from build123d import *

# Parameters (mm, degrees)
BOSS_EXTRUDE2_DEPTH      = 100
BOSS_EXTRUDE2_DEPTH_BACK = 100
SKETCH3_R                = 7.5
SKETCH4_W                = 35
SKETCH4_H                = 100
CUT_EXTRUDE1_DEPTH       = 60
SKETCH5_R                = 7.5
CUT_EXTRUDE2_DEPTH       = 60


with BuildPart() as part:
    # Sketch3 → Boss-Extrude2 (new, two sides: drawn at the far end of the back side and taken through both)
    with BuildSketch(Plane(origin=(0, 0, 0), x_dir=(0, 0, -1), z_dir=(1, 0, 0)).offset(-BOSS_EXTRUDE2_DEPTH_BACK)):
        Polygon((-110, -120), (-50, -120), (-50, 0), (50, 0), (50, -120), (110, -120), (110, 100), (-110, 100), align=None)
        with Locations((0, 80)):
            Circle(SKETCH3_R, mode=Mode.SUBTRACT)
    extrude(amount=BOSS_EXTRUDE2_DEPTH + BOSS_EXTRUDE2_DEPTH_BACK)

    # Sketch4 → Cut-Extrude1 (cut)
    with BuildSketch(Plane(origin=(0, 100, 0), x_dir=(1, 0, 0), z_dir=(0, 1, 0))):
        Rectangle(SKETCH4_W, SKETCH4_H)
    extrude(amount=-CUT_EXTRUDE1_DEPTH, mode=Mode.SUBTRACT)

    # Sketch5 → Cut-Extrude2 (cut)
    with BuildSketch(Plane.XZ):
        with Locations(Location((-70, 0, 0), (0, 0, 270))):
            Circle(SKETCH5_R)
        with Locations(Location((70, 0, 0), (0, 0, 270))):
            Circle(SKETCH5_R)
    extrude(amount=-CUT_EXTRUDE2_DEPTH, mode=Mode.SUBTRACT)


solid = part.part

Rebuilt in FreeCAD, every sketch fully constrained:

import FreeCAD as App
import Part
import Sketcher

V = App.Vector
Q = App.Units.Quantity

doc = App.newDocument("Part")
params = doc.addObject("Spreadsheet::Sheet", "Params")
for row, (alias, value) in enumerate([
    ("sketch1_diameter", "15 mm"),
    ("sketch1_width", "120 mm"),
    ("sketch1_width2", "220 mm"),
    ("sketch1_height", "60 mm"),
    ("pad1_length", "100 mm"),
    ("pad1_length2", "100 mm"),
    ("sketch2_width", "35 mm"),
    ("sketch2_height", "100 mm"),
    ("pocket1_length", "60 mm"),
    ("sketch3_diameter", "15 mm"),
    ("pocket2_length", "60 mm"),
], start=1):
    params.set(f"A{row}", alias)
    params.set(f"B{row}", "=" + value)
    params.setAlias(f"B{row}", alias)

body = doc.addObject("PartDesign::Body", "Body")

# Sketch on YZ plane
sketch1 = doc.addObject("Sketcher::SketchObject", "Sketch")
body.addObject(sketch1)
sketch1.AttachmentSupport = (doc.YZ_Plane, [""])
sketch1.MapMode = "FlatFace"
sketch1.addGeometry([
    Part.LineSegment(V(-120, 110, 0), V(-120, 50, 0)),  # 0
    Part.LineSegment(V(-120, 50, 0), V(0, 50, 0)),  # 1
    Part.LineSegment(V(0, 50, 0), V(0, -50, 0)),  # 2
    Part.LineSegment(V(0, -50, 0), V(-120, -50, 0)),  # 3
    Part.LineSegment(V(-120, -50, 0), V(-120, -110, 0)),  # 4
    Part.LineSegment(V(-120, -110, 0), V(100, -110, 0)),  # 5
    Part.LineSegment(V(100, -110, 0), V(100, 110, 0)),  # 6
    Part.LineSegment(V(100, 110, 0), V(-120, 110, 0)),  # 7
    Part.Circle(V(80, 0, 0), V(0, 0, 1), 8),  # 8
], False)
sketch1.addConstraint([
    Sketcher.Constraint("Coincident", 0, 2, 1, 1),
    Sketcher.Constraint("Coincident", 1, 2, 2, 1),
    Sketcher.Constraint("Coincident", 2, 2, 3, 1),
    Sketcher.Constraint("Coincident", 3, 2, 4, 1),
    Sketcher.Constraint("Coincident", 4, 2, 5, 1),
    Sketcher.Constraint("Coincident", 5, 2, 6, 1),
    Sketcher.Constraint("Coincident", 6, 2, 7, 1),
    Sketcher.Constraint("Coincident", 7, 2, 0, 1),
    Sketcher.Constraint("Vertical", 0),
    Sketcher.Constraint("Horizontal", 1),
    Sketcher.Constraint("Vertical", 2),
    Sketcher.Constraint("Horizontal", 3),
    Sketcher.Constraint("Vertical", 4),
    Sketcher.Constraint("Horizontal", 5),
    Sketcher.Constraint("Vertical", 6),
    Sketcher.Constraint("Horizontal", 7),
    Sketcher.Constraint("Symmetric", 1, 2, 2, 2, -1, 1),
    Sketcher.Constraint("Symmetric", 4, 2, 7, 2, -1),
    Sketcher.Constraint("PointOnObject", 8, 3, -1),
    Sketcher.Constraint("Equal", 7, 6),
    Sketcher.Constraint("Diameter", 8, Q("15 mm")),
    Sketcher.Constraint("DistanceX", 1, 1, 1, 2, Q("120 mm")),
    Sketcher.Constraint("DistanceX", 5, 1, 5, 2, Q("220 mm")),
    Sketcher.Constraint("DistanceY", 0, 2, 0, 1, Q("60 mm")),
    Sketcher.Constraint("DistanceX", -1, 1, 8, 3, Q("80 mm")),
])
sketch1.setExpression("Constraints[20]", "Params.sketch1_diameter")
sketch1.setExpression("Constraints[21]", "Params.sketch1_width")
sketch1.setExpression("Constraints[22]", "Params.sketch1_width2")
sketch1.setExpression("Constraints[23]", "Params.sketch1_height")
pad1 = doc.addObject("PartDesign::Pad", "Pad")
body.addObject(pad1)
pad1.Profile = sketch1
pad1.Type = "TwoLengths"
pad1.setExpression("Length", "Params.pad1_length")
pad1.setExpression("Length2", "Params.pad1_length2")

# Sketch on XZ plane
sketch2 = doc.addObject("Sketcher::SketchObject", "Sketch001")
body.addObject(sketch2)
sketch2.AttachmentSupport = (doc.XZ_Plane, [""])
sketch2.MapMode = "FlatFace"
sketch2.AttachmentOffset = App.Placement(V(0, 0, -100), App.Rotation())
sketch2.addGeometry([
    Part.LineSegment(V(-18, -50, 0), V(-18, 50, 0)),
    Part.LineSegment(V(-18, 50, 0), V(18, 50, 0)),
    Part.LineSegment(V(18, 50, 0), V(18, -50, 0)),
    Part.LineSegment(V(18, -50, 0), V(-18, -50, 0)),
], False)
sketch2.addConstraint([
    Sketcher.Constraint("Coincident", 0, 2, 1, 1),
    Sketcher.Constraint("Coincident", 1, 2, 2, 1),
    Sketcher.Constraint("Coincident", 2, 2, 3, 1),
    Sketcher.Constraint("Coincident", 3, 2, 0, 1),
    Sketcher.Constraint("Vertical", 0),
    Sketcher.Constraint("Horizontal", 1),
    Sketcher.Constraint("Vertical", 2),
    Sketcher.Constraint("Horizontal", 3),
    Sketcher.Constraint("Symmetric", 0, 2, 2, 2, -1, 1),
    Sketcher.Constraint("DistanceX", 1, 1, 1, 2, Q("35 mm")),
    Sketcher.Constraint("DistanceY", 0, 1, 0, 2, Q("100 mm")),
])
sketch2.setExpression("Constraints[9]", "Params.sketch2_width")
sketch2.setExpression("Constraints[10]", "Params.sketch2_height")
pocket1 = doc.addObject("PartDesign::Pocket", "Pocket")
body.addObject(pocket1)
pocket1.Profile = sketch2
pocket1.setExpression("Length", "Params.pocket1_length")
pocket1.Reversed = True

# Sketch on XZ plane
sketch3 = doc.addObject("Sketcher::SketchObject", "Sketch002")
body.addObject(sketch3)
sketch3.AttachmentSupport = (doc.XZ_Plane, [""])
sketch3.MapMode = "FlatFace"
sketch3.addGeometry([
    Part.Circle(V(-70, 0, 0), V(0, 0, 1), 8),
    Part.Circle(V(70, 0, 0), V(0, 0, 1), 8),
], False)
sketch3.addConstraint([
    Sketcher.Constraint("Equal", 0, 1),
    Sketcher.Constraint("Symmetric", 0, 3, 1, 3, -1, 1),
    Sketcher.Constraint("PointOnObject", 0, 3, -1),
    Sketcher.Constraint("Diameter", 0, Q("15 mm")),
    Sketcher.Constraint("DistanceX", 0, 3, -1, 1, Q("70 mm")),
])
sketch3.setExpression("Constraints[3]", "Params.sketch3_diameter")
pocket2 = doc.addObject("PartDesign::Pocket", "Pocket001")
body.addObject(pocket2)
pocket2.Profile = sketch3
pocket2.setExpression("Length", "Params.pocket2_length")

doc.recompute()
